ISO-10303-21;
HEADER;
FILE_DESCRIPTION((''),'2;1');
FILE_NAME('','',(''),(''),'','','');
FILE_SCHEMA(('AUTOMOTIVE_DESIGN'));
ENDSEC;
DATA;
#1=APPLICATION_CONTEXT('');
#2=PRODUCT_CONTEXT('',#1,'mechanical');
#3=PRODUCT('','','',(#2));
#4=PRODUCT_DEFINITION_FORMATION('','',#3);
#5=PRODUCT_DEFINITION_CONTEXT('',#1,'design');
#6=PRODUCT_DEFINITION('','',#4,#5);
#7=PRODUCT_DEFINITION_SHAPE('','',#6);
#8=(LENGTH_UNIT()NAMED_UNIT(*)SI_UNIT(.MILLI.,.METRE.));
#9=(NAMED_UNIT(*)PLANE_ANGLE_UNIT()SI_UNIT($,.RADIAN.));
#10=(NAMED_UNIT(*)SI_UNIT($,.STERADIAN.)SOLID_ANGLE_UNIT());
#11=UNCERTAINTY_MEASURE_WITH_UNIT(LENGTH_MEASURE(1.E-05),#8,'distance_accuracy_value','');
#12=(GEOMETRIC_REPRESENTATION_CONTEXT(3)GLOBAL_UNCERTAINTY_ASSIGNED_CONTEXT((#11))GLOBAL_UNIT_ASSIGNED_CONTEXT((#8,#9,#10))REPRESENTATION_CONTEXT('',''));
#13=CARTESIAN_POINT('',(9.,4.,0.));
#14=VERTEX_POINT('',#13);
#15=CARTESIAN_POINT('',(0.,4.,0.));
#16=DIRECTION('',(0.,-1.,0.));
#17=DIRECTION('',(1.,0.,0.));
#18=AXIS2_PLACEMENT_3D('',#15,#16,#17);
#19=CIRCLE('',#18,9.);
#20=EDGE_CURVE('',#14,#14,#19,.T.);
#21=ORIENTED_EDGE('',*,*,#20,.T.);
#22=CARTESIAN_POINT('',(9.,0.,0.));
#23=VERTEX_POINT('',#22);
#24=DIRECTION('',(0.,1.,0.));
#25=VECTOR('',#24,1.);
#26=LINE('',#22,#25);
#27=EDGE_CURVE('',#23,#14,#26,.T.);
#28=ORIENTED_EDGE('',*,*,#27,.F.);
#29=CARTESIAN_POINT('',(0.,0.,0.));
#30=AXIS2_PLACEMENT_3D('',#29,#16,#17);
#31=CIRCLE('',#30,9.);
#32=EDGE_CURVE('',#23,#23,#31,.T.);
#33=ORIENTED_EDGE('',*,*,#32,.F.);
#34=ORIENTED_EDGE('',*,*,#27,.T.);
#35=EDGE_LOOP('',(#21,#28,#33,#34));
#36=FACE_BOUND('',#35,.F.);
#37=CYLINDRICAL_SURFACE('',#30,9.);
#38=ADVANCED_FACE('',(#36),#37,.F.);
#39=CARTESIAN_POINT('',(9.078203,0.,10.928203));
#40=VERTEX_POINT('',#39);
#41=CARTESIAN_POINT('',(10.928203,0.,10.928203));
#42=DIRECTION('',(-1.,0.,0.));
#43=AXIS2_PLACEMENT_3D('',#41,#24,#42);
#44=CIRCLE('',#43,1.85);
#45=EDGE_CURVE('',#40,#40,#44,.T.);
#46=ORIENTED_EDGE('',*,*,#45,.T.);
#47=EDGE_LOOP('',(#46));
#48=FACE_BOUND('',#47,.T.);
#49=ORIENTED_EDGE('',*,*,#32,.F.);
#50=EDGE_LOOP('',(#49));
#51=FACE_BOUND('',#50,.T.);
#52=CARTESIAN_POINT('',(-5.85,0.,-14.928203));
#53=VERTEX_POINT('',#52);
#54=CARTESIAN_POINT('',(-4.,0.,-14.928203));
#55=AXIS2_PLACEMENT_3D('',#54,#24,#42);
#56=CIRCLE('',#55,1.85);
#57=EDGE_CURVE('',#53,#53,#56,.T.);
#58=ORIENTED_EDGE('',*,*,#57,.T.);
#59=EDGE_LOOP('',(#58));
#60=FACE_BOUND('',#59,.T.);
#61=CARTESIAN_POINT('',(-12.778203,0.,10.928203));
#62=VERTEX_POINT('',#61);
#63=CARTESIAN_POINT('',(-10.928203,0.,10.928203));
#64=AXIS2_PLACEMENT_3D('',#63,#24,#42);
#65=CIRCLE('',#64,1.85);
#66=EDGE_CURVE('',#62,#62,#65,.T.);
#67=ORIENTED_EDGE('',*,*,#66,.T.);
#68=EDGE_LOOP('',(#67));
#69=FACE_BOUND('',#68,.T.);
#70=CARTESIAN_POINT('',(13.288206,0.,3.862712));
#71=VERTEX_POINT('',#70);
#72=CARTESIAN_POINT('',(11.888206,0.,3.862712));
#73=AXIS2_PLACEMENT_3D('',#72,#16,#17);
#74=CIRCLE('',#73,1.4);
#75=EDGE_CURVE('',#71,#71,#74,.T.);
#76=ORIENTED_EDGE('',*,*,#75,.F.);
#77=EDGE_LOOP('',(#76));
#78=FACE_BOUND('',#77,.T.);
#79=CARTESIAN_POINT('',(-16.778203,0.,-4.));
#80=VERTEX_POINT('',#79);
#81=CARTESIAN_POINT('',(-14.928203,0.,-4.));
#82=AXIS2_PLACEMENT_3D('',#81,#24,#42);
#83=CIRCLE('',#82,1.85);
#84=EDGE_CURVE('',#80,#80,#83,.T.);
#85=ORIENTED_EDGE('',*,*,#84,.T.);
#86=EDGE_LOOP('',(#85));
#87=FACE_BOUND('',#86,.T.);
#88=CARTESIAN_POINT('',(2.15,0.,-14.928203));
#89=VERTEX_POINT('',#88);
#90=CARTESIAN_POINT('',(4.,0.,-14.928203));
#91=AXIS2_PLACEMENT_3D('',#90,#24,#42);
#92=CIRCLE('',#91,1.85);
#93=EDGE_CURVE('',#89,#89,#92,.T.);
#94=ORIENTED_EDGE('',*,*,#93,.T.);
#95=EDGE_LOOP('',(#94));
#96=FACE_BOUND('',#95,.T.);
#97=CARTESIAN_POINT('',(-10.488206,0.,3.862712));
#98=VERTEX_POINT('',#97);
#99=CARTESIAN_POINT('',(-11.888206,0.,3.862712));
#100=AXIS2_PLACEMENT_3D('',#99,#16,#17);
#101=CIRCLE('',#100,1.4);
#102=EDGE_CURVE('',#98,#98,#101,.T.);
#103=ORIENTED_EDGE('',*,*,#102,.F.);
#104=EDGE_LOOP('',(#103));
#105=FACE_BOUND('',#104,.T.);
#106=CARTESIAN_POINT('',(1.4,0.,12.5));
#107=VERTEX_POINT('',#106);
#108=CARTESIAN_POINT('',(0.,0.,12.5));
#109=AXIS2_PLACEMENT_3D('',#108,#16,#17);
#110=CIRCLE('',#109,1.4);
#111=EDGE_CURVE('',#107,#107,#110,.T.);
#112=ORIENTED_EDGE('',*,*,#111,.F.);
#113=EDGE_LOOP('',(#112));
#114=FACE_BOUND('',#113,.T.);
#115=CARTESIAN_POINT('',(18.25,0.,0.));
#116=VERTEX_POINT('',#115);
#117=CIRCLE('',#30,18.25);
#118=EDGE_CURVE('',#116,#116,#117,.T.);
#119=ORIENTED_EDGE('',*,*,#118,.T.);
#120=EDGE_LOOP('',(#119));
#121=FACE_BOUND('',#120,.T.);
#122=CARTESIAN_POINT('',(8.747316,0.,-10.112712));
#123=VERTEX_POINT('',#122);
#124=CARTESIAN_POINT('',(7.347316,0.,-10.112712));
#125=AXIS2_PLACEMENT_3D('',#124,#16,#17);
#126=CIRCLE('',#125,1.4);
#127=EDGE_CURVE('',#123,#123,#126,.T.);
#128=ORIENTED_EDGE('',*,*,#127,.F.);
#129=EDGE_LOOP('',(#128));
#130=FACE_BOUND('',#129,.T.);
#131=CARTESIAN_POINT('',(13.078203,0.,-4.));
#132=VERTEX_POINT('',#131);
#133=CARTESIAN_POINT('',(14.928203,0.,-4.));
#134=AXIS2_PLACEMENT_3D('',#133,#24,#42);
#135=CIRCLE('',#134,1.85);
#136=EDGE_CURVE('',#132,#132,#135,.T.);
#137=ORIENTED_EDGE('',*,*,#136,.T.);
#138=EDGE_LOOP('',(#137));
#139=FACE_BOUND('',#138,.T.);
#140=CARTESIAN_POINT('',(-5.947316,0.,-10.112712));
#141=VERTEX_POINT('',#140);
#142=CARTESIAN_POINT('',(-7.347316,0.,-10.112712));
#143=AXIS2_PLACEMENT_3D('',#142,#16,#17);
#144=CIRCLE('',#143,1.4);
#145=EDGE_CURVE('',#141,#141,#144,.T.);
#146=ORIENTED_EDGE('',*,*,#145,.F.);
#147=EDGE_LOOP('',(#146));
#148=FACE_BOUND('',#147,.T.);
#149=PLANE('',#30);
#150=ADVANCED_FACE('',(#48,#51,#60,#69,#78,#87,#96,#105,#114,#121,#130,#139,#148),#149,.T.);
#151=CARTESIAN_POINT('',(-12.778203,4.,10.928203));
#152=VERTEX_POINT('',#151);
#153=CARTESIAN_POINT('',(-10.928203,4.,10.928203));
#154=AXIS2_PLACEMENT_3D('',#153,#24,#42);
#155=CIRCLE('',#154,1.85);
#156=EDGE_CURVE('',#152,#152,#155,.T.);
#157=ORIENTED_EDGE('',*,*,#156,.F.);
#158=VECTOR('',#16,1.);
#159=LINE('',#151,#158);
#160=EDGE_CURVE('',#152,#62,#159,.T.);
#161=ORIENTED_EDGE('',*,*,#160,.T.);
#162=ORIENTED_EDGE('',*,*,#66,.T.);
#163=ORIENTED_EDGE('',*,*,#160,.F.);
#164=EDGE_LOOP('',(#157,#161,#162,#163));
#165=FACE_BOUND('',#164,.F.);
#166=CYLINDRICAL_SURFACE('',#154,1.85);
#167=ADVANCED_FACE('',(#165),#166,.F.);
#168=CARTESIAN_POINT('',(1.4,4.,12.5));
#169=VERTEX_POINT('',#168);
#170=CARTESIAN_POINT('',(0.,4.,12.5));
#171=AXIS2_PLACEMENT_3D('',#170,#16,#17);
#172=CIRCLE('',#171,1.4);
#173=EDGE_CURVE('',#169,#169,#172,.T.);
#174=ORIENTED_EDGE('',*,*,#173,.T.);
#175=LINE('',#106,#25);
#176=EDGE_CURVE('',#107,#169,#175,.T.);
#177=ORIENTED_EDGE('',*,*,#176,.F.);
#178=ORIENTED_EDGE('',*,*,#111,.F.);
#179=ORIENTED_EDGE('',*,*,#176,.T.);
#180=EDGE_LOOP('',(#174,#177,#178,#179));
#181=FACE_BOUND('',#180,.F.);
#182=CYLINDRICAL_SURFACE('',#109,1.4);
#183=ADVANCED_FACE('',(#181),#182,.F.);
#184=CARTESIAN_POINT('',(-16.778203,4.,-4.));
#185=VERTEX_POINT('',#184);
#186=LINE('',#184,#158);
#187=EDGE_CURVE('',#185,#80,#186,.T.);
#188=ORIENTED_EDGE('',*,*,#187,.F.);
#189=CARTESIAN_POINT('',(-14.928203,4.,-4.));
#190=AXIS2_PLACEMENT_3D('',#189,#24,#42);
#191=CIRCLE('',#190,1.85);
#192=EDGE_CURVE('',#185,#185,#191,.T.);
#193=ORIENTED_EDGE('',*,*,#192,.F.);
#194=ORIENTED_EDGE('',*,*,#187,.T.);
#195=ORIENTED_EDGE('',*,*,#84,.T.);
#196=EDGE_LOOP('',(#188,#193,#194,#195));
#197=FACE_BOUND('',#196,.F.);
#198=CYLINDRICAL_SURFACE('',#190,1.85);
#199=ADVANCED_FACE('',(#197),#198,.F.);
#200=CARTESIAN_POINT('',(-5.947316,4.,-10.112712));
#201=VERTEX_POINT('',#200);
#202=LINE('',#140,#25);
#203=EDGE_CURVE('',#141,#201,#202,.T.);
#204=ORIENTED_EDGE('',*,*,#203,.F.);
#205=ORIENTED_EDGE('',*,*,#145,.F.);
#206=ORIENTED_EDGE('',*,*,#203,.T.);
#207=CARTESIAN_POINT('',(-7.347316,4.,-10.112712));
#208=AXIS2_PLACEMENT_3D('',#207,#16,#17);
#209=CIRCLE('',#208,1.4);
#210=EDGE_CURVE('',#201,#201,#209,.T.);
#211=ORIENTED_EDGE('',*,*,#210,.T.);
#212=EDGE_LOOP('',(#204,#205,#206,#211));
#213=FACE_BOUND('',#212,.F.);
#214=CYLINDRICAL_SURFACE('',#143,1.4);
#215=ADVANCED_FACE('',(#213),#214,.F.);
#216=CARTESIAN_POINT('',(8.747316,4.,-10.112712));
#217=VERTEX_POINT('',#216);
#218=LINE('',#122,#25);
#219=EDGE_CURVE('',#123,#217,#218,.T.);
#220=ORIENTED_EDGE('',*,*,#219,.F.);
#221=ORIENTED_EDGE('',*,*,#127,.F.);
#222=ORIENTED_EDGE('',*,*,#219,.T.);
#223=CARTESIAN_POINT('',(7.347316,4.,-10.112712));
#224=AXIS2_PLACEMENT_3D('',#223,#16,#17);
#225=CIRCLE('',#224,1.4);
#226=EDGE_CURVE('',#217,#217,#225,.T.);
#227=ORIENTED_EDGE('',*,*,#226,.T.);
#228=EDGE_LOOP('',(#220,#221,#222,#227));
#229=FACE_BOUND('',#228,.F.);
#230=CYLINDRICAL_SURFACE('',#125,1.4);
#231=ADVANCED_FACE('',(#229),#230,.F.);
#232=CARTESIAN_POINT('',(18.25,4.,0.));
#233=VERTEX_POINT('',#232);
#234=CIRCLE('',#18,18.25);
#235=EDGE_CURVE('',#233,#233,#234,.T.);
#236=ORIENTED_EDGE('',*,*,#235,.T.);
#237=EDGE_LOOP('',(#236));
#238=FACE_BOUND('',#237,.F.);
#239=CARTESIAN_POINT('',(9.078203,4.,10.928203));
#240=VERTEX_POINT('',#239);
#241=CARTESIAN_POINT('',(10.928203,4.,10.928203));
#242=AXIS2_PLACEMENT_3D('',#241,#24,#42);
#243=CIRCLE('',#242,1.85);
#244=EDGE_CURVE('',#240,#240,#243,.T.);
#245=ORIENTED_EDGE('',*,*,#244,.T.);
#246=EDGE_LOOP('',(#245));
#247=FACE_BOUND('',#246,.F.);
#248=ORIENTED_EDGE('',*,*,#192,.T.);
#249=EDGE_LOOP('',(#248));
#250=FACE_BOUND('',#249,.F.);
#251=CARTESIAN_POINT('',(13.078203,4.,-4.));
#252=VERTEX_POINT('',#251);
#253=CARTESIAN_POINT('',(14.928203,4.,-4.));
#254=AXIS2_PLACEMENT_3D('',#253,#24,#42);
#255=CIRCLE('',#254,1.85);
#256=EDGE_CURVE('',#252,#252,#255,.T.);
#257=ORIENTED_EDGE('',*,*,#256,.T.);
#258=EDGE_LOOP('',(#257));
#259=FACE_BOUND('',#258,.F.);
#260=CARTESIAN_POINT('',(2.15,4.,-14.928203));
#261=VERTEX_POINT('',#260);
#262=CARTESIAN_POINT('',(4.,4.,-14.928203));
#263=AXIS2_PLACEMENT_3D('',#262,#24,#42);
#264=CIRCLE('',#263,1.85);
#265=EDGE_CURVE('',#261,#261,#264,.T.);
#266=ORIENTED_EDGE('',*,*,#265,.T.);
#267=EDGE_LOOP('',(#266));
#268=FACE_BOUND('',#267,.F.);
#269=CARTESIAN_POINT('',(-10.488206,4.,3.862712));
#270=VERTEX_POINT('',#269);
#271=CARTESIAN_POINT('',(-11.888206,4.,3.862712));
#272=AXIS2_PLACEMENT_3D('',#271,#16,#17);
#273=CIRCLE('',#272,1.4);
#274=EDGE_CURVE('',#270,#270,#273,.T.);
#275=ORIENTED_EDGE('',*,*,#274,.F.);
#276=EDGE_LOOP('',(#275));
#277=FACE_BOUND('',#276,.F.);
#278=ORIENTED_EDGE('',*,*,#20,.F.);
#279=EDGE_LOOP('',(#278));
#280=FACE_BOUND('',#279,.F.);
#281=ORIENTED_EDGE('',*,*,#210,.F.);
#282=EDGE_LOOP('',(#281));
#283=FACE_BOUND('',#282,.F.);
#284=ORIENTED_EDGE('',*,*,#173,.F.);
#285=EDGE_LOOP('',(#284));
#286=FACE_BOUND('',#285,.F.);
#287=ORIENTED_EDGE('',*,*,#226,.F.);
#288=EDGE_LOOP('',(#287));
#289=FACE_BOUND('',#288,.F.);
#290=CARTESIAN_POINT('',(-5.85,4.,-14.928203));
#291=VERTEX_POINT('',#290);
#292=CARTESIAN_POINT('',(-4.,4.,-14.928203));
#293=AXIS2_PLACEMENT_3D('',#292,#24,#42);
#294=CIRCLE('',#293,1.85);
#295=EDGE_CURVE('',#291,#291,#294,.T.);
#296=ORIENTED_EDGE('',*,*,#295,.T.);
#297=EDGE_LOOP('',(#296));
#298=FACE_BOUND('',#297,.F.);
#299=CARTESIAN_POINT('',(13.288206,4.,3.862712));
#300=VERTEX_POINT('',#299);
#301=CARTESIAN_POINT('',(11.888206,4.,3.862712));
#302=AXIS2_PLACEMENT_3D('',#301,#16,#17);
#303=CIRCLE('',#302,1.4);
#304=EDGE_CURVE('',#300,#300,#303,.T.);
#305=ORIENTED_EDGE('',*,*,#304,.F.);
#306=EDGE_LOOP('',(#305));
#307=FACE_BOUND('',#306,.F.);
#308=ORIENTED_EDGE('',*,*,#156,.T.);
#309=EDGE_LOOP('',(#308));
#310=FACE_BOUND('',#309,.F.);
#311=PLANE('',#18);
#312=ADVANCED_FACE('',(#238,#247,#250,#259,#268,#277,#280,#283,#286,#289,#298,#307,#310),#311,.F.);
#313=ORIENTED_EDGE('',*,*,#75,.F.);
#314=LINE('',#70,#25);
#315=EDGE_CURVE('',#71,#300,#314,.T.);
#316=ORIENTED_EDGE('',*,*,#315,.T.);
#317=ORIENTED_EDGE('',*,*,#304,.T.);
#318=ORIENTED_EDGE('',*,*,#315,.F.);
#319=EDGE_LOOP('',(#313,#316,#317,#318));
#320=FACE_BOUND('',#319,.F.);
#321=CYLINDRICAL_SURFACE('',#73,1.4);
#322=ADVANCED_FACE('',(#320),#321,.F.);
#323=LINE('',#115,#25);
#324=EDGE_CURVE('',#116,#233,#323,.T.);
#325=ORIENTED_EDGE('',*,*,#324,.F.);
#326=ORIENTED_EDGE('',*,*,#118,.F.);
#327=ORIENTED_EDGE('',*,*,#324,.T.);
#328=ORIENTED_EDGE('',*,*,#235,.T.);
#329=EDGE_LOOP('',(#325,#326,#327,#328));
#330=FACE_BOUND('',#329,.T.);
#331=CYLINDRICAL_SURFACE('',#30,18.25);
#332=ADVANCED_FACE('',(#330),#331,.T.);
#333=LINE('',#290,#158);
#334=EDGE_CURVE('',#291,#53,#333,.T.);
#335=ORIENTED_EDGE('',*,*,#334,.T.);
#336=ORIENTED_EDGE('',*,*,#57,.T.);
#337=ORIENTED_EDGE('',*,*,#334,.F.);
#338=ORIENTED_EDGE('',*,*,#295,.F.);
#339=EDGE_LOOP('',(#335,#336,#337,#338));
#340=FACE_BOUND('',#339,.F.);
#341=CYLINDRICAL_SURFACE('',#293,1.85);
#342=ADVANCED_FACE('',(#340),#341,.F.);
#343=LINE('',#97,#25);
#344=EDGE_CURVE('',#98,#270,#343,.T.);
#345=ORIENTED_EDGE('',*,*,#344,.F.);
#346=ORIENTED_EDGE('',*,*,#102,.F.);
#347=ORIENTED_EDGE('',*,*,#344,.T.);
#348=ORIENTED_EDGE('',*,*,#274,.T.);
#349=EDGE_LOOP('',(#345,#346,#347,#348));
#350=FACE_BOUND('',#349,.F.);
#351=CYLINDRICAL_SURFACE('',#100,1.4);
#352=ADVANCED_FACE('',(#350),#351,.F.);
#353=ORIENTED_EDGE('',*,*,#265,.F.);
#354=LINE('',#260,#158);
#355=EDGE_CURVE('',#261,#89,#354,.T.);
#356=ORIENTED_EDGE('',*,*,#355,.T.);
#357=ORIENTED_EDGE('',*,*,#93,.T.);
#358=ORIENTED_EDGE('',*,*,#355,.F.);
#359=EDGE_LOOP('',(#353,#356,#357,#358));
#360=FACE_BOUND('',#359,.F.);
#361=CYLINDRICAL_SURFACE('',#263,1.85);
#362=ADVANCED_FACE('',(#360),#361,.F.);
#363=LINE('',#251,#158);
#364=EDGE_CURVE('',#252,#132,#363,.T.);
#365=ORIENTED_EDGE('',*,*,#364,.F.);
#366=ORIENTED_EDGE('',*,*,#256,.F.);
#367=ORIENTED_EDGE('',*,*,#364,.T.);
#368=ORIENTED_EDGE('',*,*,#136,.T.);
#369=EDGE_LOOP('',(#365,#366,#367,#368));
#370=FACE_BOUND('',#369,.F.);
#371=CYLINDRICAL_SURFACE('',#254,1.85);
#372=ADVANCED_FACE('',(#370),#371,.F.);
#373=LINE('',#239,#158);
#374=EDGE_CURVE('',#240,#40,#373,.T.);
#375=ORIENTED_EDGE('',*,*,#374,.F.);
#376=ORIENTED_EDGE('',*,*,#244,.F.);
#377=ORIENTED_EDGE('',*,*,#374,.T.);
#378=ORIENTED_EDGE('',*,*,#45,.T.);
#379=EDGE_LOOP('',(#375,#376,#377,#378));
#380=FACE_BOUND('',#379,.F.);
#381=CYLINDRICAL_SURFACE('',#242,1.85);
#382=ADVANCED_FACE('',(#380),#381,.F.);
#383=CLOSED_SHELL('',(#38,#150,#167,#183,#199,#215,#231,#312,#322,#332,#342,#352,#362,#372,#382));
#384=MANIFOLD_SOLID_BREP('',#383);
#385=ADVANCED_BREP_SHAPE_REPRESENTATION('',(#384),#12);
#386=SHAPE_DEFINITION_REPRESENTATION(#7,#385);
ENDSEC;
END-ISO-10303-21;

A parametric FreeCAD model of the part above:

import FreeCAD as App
import Part
import Sketcher
from FreeCAD import Vector
Q = App.Units.Quantity

doc = App.newDocument("Part")
params = doc.addObject("Spreadsheet::Sheet", "Params")
for row, (alias, value) in enumerate([
    ("sketch1_diameter", "18 mm"),
    ("sketch1_diameter2", "36.5 mm"),
    ("sketch1_diameter3", "2.8 mm"),
    ("pad1_length", "4 mm"),
    ("sketch2_diameter", "3.7 mm"),
    ("pocket1_length", "25 mm"),
], start=1):
    params.set(f"A{row}", alias)
    params.set(f"B{row}", "=" + value)
    params.setAlias(f"B{row}", alias)

body = doc.addObject("PartDesign::Body", "Body")

# Sketch on XZ plane
sketch1 = body.newObject("Sketcher::SketchObject", "Sketch")
sketch1.AttachmentSupport = (doc.getObject("XZ_Plane"), [""])
sketch1.MapMode = "FlatFace"
sketch1.addGeometry([
    Part.Circle(Vector(0, 0, 0), Vector(0, 0, 1), 18.2),  # 0
    Part.Circle(Vector(-7.3, -10.1, 0), Vector(0, 0, 1), 1.4),  # 1
    Part.Circle(Vector(7.3, -10.1, 0), Vector(0, 0, 1), 1.4),  # 2
    Part.Circle(Vector(0, 0, 0), Vector(0, 0, 1), 9),  # 3
    Part.Circle(Vector(-11.9, 3.9, 0), Vector(0, 0, 1), 1.4),  # 4
    Part.Circle(Vector(11.9, 3.9, 0), Vector(0, 0, 1), 1.4),  # 5
    Part.Circle(Vector(0, 12.5, 0), Vector(0, 0, 1), 1.4),  # 6
], False)
sketch1.addConstraint([
    Sketcher.Constraint("Coincident", 0, 3, -1, 1),
    Sketcher.Constraint("Coincident", 3, 3, -1, 1),
    Sketcher.Constraint("Equal", 1, 2),
    Sketcher.Constraint("Equal", 2, 4),
    Sketcher.Constraint("Equal", 4, 5),
    Sketcher.Constraint("Equal", 5, 6),
    Sketcher.Constraint("Symmetric", 1, 3, 2, 3, -2),
    Sketcher.Constraint("Symmetric", 4, 3, 5, 3, -2),
    Sketcher.Constraint("PointOnObject", 6, 3, -2),
    Sketcher.Constraint("Diameter", 3, Q("18 mm")),
    Sketcher.Constraint("Diameter", 0, Q("36.5 mm")),
    Sketcher.Constraint("Diameter", 1, Q("2.8 mm")),
    Sketcher.Constraint("DistanceY", -1, 1, 6, 3, Q("12.5 mm")),
    Sketcher.Constraint("DistanceX", 4, 3, 1, 3, Q("4.54089 mm")),
    Sketcher.Constraint("DistanceX", 4, 3, 2, 3, Q("19.235522 mm")),
    Sketcher.Constraint("DistanceY", 1, 3, -1, 1, Q("10.112712 mm")),
    Sketcher.Constraint("DistanceY", -1, 1, 4, 3, Q("3.862712 mm")),
])
sketch1.setExpression("Constraints[9]", "Params.sketch1_diameter")
sketch1.setExpression("Constraints[10]", "Params.sketch1_diameter2")
sketch1.setExpression("Constraints[11]", "Params.sketch1_diameter3")
pad1 = body.newObject("PartDesign::Pad", "Pad")
pad1.Profile = sketch1
pad1.setExpression("Length", "Params.pad1_length")
pad1.Reversed = True

# Sketch on XZ plane
sketch2 = body.newObject("Sketcher::SketchObject", "Sketch001")
sketch2.AttachmentSupport = (doc.getObject("XZ_Plane"), [""])
sketch2.MapMode = "FlatFace"
sketch2.AttachmentOffset = App.Placement(Vector(0, 0, -4), App.Rotation())
sketch2.addGeometry([
    Part.Circle(Vector(14.9, -4, 0), Vector(0, 0, 1), 1.9),  # 0
    Part.Circle(Vector(10.9, 10.9, 0), Vector(0, 0, 1), 1.9),  # 1
    Part.Circle(Vector(-14.9, -4, 0), Vector(0, 0, 1), 1.9),  # 2
    Part.Circle(Vector(-10.9, 10.9, 0), Vector(0, 0, 1), 1.9),  # 3
    Part.Circle(Vector(-4, -14.9, 0), Vector(0, 0, 1), 1.9),  # 4
    Part.Circle(Vector(4, -14.9, 0), Vector(0, 0, 1), 1.9),  # 5
], False)
sketch2.addConstraint([
    Sketcher.Constraint("Equal", 0, 1),
    Sketcher.Constraint("Equal", 1, 2),
    Sketcher.Constraint("Equal", 2, 3),
    Sketcher.Constraint("Equal", 3, 4),
    Sketcher.Constraint("Equal", 4, 5),
    Sketcher.Constraint("Symmetric", 0, 3, 2, 3, -2),
    Sketcher.Constraint("Symmetric", 1, 3, 3, 3, -2),
    Sketcher.Constraint("Symmetric", 4, 3, 5, 3, -2),
    Sketcher.Constraint("Diameter", 0, Q("3.7 mm")),
    Sketcher.Constraint("DistanceY", 0, 3, -1, 1, Q("4 mm")),
    Sketcher.Constraint("DistanceX", 4, 3, -1, 1, Q("4 mm")),
    Sketcher.Constraint("DistanceX", 1, 3, 0, 3, Q("4 mm")),
    Sketcher.Constraint("DistanceX", -1, 1, 0, 3, Q("14.928203 mm")),
    Sketcher.Constraint("DistanceY", -1, 1, 1, 3, Q("10.928203 mm")),
    Sketcher.Constraint("DistanceY", 4, 3, -1, 1, Q("14.928203 mm")),
])
sketch2.setExpression("Constraints[8]", "Params.sketch2_diameter")
pocket1 = body.newObject("PartDesign::Pocket", "Pocket")
pocket1.Profile = sketch2
pocket1.setExpression("Length", "Params.pocket1_length")
pocket1.Reversed = True

doc.recompute()
